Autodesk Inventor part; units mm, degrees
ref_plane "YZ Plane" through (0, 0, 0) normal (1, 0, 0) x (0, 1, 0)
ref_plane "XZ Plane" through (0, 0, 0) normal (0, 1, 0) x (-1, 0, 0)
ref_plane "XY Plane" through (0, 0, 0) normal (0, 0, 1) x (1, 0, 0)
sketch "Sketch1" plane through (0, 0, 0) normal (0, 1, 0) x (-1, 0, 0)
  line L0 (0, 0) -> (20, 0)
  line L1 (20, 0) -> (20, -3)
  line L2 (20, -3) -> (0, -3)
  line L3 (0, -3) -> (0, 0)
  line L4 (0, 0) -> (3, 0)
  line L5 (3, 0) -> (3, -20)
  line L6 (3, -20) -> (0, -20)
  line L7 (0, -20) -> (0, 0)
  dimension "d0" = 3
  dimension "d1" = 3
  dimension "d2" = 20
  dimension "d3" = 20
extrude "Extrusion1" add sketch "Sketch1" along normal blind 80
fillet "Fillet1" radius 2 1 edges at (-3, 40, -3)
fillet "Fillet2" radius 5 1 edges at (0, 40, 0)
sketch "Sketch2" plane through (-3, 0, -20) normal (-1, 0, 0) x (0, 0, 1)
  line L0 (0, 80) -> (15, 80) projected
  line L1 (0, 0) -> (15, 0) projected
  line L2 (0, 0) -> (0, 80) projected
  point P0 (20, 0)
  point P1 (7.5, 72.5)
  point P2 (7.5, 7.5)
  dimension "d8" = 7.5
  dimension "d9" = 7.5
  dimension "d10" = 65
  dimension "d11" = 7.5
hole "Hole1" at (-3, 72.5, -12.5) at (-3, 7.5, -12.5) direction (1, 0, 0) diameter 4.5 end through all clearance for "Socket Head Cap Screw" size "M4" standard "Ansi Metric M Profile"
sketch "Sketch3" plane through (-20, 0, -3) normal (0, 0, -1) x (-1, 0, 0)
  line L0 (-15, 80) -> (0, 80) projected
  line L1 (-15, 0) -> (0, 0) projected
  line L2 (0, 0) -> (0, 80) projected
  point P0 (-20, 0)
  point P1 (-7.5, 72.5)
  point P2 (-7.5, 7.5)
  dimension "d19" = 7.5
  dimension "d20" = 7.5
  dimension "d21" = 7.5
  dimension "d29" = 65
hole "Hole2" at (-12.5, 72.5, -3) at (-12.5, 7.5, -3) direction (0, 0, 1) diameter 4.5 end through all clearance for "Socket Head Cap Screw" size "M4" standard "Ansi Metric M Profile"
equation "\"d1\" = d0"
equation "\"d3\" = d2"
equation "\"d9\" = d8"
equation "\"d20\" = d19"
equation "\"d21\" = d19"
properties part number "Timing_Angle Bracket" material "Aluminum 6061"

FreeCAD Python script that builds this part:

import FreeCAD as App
import Part
import Sketcher
from FreeCAD import Vector


def edges_at(feature, points):
    """Names of the edges that pass closest to the given points."""
    edges = feature.Shape.Edges
    near = lambda p: min(range(len(edges)), key=lambda i: edges[i].distToShape(Part.Vertex(*p))[0])
    return sorted({f"Edge{near(p) + 1}" for p in points})


def add_polygon(sketch, points):
    """Adds a closed chain of lines whose ends are joined by coincident constraints."""
    first, n = sketch.GeometryCount, len(points)
    for a, b in zip(points, points[1:] + points[:1]):
        sketch.addGeometry(Part.LineSegment(App.Vector(*a, 0), App.Vector(*b, 0)), False)
    for i in range(n):
        sketch.addConstraint(Sketcher.Constraint("Coincident", first + i, 2, first + (i + 1) % n, 1))

doc = App.newDocument("Part")
body = doc.addObject("PartDesign::Body", "Body")

# Sketch on XZ plane
sketch1 = body.newObject("Sketcher::SketchObject", "Sketch")
sketch1.AttachmentSupport = (doc.getObject("XZ_Plane"), [""])
sketch1.MapMode = "FlatFace"
add_polygon(sketch1, [(0, 0), (0, -20), (-3, -20), (-3, -3), (-20, -3), (-20, 0)])  # lines 0-5
sketch1.addConstraint(Sketcher.Constraint("Vertical", 0))
sketch1.addConstraint(Sketcher.Constraint("Horizontal", 1))
sketch1.addConstraint(Sketcher.Constraint("Vertical", 2))
sketch1.addConstraint(Sketcher.Constraint("Horizontal", 3))
sketch1.addConstraint(Sketcher.Constraint("Vertical", 4))
sketch1.addConstraint(Sketcher.Constraint("Horizontal", 5))
sketch1.addConstraint(Sketcher.Constraint("Coincident", 5, 2, -1, 1))
sketch1.addConstraint(Sketcher.Constraint("Equal", 5, 0))
sketch1.addConstraint(Sketcher.Constraint("Equal", 3, 2))
sketch1.addConstraint(Sketcher.Constraint("DistanceX", 1, 2, 1, 1, 3.0))
sketch1.addConstraint(Sketcher.Constraint("DistanceX", 5, 1, 5, 2, 20.0))
pad1 = body.newObject("PartDesign::Pad", "Pad")
pad1.Profile = sketch1
pad1.Length = 80
pad1.Reversed = True
doc.recompute()

fillet = body.newObject("PartDesign::Fillet", "Fillet")
fillet.Base = (pad1, edges_at(pad1, [(-3, 40, -3)]))
fillet.Radius = 2
doc.recompute()

fillet2 = body.newObject("PartDesign::Fillet", "Fillet001")
fillet2.Base = (fillet, edges_at(fillet, [(0, 40, 0)]))
fillet2.Radius = 5

# Sketch on YZ plane
sketch2 = body.newObject("Sketcher::SketchObject", "Sketch001")
sketch2.AttachmentSupport = (doc.getObject("YZ_Plane"), [""])
sketch2.MapMode = "FlatFace"
sketch2.AttachmentOffset = App.Placement(Vector(0, 0, -3), App.Rotation())
sketch2.addGeometry(Part.Circle(Vector(72.5, -12.5, 0), Vector(0, 0, 1), 2.2), False)
sketch2.addGeometry(Part.Circle(Vector(7.5, -12.5, 0), Vector(0, 0, 1), 2.2), False)
sketch2.addConstraint(Sketcher.Constraint("Equal", 0, 1))
sketch2.addConstraint(Sketcher.Constraint("Horizontal", 0, 3, 1, 3))
sketch2.addConstraint(Sketcher.Constraint("Diameter", 0, 4.5))
sketch2.addConstraint(Sketcher.Constraint("DistanceX", 1, 3, 0, 3, 65.0))
sketch2.addConstraint(Sketcher.Constraint("DistanceX", -1, 1, 0, 3, 72.5))
sketch2.addConstraint(Sketcher.Constraint("DistanceY", 0, 3, -1, 1, 12.5))
doc.recompute()
hole = body.newObject("PartDesign::Hole", "Hole")
hole.Profile = sketch2
hole.ThreadType = "None"
hole.Diameter = 4.5
hole.DepthType = "ThroughAll"
hole.Reversed = True

# Sketch on XY plane
sketch3 = body.newObject("Sketcher::SketchObject", "Sketch002")
sketch3.AttachmentSupport = (doc.getObject("XY_Plane"), [""])
sketch3.MapMode = "FlatFace"
sketch3.AttachmentOffset = App.Placement(Vector(0, 0, -3), App.Rotation())
sketch3.addGeometry(Part.Circle(Vector(-12.5, 72.5, 0), Vector(0, 0, 1), 2.2), False)
sketch3.addGeometry(Part.Circle(Vector(-12.5, 7.5, 0), Vector(0, 0, 1), 2.2), False)
sketch3.addConstraint(Sketcher.Constraint("Equal", 0, 1))
sketch3.addConstraint(Sketcher.Constraint("Vertical", 0, 3, 1, 3))
sketch3.addConstraint(Sketcher.Constraint("Diameter", 0, 4.5))
sketch3.addConstraint(Sketcher.Constraint("DistanceY", 1, 3, 0, 3, 65.0))
sketch3.addConstraint(Sketcher.Constraint("DistanceX", 0, 3, -1, 1, 12.5))
sketch3.addConstraint(Sketcher.Constraint("DistanceY", -1, 1, 0, 3, 72.5))
doc.recompute()
hole2 = body.newObject("PartDesign::Hole", "Hole001")
hole2.Profile = sketch3
hole2.ThreadType = "None"
hole2.Diameter = 4.5
hole2.DepthType = "ThroughAll"
hole2.Reversed = True

doc.recompute()
